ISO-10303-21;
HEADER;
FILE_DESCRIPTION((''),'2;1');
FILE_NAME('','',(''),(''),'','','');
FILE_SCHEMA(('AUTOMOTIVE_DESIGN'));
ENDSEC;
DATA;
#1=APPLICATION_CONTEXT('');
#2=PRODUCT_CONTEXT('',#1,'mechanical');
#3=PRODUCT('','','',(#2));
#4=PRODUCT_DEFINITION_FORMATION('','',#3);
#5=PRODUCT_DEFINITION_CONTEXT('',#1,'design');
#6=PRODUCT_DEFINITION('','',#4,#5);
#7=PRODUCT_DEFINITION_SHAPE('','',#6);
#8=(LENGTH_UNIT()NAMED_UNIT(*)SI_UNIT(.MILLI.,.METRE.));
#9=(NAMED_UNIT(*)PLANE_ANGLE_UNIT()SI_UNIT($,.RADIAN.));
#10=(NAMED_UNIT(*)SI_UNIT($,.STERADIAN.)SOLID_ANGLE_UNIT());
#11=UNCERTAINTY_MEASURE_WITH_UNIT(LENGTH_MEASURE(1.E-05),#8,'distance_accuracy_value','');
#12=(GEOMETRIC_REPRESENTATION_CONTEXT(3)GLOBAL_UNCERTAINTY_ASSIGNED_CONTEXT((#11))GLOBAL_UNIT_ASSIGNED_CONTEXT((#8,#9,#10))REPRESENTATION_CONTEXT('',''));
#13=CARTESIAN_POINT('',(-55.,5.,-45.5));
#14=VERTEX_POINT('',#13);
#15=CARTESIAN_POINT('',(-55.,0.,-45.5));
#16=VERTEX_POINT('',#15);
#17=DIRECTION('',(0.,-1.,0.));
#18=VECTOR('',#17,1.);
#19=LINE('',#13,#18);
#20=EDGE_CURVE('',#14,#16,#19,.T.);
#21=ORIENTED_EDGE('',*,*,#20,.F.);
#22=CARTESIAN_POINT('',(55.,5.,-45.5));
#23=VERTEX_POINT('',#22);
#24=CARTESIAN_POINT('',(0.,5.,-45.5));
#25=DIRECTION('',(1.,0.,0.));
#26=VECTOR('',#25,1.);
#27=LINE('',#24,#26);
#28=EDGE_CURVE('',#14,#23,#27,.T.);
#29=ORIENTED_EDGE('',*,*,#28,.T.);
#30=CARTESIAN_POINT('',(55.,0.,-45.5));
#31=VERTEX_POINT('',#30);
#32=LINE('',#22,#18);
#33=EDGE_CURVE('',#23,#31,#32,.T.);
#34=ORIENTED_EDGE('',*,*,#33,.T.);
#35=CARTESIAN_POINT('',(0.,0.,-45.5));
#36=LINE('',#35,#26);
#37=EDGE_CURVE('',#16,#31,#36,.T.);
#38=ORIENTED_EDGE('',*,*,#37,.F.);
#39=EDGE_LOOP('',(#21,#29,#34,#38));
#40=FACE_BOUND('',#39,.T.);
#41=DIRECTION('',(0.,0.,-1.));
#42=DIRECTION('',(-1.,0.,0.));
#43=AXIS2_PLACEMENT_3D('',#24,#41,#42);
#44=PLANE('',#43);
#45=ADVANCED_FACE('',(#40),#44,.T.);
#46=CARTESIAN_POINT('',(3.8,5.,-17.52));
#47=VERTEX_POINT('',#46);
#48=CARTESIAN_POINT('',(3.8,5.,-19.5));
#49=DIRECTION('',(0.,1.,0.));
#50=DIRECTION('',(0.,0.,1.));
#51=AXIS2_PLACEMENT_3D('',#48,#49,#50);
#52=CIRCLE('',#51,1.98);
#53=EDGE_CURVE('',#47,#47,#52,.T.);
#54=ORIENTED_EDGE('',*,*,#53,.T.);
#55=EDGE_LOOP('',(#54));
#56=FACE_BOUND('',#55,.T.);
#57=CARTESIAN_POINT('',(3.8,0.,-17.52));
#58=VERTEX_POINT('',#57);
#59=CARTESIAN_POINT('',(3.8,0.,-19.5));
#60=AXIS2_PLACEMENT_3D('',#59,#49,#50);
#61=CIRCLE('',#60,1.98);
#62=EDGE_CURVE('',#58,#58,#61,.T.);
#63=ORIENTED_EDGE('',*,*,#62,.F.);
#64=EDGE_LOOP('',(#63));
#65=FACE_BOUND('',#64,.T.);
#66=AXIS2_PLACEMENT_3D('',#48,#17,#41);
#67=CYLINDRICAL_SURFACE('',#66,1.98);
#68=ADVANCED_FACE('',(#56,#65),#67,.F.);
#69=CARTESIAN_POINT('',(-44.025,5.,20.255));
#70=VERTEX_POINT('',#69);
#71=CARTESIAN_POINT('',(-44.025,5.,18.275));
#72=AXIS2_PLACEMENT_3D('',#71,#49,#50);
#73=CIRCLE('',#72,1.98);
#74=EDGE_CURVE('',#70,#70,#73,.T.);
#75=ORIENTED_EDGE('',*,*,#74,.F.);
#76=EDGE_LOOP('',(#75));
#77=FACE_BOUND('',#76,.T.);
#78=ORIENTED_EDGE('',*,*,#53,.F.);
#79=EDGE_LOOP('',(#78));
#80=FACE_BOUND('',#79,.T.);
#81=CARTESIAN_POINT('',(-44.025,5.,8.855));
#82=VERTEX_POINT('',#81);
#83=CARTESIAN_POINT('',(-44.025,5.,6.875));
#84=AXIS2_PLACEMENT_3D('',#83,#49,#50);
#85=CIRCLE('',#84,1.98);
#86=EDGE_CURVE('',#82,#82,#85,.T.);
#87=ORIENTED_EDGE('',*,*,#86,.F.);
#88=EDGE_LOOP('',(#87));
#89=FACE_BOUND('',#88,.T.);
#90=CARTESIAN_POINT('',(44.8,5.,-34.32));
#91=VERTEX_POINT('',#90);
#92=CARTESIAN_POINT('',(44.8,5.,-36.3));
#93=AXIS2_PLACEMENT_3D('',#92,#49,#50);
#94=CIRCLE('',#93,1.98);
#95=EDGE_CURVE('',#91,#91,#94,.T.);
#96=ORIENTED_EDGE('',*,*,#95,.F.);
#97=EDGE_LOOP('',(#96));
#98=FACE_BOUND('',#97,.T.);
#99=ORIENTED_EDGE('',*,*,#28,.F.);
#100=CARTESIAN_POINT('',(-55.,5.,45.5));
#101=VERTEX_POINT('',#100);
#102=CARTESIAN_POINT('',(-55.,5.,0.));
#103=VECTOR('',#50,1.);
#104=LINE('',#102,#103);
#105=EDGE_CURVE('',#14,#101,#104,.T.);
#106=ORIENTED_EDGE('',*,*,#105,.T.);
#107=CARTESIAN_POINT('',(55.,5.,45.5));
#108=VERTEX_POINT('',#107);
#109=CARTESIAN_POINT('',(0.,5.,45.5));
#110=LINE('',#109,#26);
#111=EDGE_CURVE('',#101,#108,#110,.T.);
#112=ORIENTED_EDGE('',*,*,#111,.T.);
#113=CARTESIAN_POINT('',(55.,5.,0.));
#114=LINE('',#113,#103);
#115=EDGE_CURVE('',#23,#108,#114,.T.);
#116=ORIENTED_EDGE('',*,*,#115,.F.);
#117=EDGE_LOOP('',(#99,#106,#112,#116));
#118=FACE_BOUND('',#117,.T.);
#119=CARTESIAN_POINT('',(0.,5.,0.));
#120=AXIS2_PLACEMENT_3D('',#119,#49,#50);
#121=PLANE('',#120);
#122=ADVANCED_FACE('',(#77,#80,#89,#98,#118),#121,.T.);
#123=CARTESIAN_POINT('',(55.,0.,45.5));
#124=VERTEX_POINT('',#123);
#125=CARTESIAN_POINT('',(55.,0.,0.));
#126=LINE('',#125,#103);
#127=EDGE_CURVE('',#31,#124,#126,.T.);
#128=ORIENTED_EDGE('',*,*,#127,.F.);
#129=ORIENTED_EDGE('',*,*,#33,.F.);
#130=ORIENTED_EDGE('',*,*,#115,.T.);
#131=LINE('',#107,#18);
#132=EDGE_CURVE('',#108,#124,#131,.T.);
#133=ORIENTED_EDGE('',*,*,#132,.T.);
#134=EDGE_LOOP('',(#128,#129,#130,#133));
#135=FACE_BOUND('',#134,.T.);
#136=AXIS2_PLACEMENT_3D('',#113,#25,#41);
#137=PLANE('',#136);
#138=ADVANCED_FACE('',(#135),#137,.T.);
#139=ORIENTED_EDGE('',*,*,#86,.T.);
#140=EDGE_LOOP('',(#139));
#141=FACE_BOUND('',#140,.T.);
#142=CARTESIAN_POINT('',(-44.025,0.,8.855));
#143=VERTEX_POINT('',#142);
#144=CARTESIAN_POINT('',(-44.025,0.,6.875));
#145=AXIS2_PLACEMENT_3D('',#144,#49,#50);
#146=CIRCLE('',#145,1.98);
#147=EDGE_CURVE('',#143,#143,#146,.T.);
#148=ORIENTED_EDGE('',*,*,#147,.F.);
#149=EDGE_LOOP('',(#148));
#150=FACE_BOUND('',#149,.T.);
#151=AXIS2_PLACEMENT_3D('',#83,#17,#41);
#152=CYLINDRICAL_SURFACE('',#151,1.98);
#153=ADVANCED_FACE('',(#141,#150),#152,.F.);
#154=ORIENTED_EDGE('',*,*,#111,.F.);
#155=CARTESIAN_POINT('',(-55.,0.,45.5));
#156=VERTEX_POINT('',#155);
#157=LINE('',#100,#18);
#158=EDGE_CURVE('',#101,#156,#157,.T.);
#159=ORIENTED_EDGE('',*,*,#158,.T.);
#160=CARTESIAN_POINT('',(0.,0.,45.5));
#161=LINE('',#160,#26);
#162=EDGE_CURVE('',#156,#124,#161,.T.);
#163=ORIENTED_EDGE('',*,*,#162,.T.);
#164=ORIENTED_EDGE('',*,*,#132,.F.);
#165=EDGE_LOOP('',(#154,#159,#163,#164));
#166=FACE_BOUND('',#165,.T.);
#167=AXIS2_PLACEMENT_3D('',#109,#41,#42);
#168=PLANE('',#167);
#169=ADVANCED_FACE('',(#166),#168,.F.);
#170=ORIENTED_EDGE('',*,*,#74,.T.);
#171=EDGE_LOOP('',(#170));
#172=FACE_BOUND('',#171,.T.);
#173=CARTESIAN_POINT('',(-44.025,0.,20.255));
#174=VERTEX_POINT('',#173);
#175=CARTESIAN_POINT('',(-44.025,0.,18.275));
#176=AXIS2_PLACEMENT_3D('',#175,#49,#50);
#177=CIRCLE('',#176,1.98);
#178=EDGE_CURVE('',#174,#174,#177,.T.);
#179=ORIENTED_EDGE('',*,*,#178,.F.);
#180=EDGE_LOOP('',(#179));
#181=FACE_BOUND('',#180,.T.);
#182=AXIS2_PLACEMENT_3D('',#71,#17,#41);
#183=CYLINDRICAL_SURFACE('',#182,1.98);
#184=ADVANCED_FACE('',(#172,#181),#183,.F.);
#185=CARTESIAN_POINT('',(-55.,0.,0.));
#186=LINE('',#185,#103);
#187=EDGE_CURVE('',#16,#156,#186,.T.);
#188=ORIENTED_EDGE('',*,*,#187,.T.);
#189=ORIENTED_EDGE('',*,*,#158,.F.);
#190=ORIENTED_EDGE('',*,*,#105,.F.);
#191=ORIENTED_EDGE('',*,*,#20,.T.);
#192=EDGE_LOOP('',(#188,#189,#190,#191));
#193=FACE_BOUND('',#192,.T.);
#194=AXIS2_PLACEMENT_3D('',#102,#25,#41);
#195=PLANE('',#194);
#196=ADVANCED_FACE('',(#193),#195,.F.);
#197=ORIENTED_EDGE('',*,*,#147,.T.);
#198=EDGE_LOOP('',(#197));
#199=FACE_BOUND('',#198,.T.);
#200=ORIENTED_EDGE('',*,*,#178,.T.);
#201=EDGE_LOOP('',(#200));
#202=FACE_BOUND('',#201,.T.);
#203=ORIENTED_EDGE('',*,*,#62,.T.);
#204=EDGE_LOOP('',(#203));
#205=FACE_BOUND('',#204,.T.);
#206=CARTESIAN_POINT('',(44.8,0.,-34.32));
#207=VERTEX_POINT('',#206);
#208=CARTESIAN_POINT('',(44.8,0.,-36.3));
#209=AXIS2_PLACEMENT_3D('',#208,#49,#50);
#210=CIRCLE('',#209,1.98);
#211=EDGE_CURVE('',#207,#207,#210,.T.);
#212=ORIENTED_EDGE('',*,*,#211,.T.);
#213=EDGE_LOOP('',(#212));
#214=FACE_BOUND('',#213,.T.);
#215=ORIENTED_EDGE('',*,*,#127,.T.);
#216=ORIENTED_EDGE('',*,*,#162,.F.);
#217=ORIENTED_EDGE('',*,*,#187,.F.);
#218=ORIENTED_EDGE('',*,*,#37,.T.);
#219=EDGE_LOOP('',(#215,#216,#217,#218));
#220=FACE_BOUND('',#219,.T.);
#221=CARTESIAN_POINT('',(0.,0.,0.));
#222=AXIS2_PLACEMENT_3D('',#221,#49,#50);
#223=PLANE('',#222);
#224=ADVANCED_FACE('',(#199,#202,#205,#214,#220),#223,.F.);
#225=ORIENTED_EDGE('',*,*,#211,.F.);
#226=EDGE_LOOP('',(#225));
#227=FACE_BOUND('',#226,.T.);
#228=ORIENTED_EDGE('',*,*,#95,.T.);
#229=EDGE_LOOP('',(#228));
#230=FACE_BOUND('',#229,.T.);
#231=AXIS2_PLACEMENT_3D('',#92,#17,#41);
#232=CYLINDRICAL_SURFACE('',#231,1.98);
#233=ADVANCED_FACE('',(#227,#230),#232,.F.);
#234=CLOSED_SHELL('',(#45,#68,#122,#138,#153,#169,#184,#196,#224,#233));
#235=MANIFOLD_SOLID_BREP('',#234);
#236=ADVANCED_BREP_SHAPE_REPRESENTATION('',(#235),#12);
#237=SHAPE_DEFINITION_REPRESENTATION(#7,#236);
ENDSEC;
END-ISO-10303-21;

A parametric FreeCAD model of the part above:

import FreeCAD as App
import Part
import Sketcher
from FreeCAD import Vector
Q = App.Units.Quantity

doc = App.newDocument("Part")
params = doc.addObject("Spreadsheet::Sheet", "Params")
for row, (alias, value) in enumerate([
    ("sketch1_diameter", "3.96 mm"),
    ("sketch1_width", "110 mm"),
    ("sketch1_height", "91 mm"),
    ("pad1_length", "5 mm"),
], start=1):
    params.set(f"A{row}", alias)
    params.set(f"B{row}", "=" + value)
    params.setAlias(f"B{row}", alias)

body = doc.addObject("PartDesign::Body", "Body")

sketch1 = doc.addObject("Sketcher::SketchObject", "Sketch")
body.addObject(sketch1)
sketch1.AttachmentSupport = (doc.XZ_Plane, [""])
sketch1.MapMode = "FlatFace"
sketch1.addGeometry(Part.LineSegment(Vector(-55, -45.5, 0), Vector(-55, 45.5, 0)), False)
sketch1.addGeometry(Part.LineSegment(Vector(-55, 45.5, 0), Vector(55, 45.5, 0)), False)
sketch1.addGeometry(Part.LineSegment(Vector(55, 45.5, 0), Vector(55, -45.5, 0)), False)
sketch1.addGeometry(Part.LineSegment(Vector(55, -45.5, 0), Vector(-55, -45.5, 0)), False)
sketch1.addGeometry(Part.Circle(Vector(-44, 18.3, 0), Vector(0, 0, 1), 2), False)
sketch1.addGeometry(Part.Circle(Vector(-44, 6.9, 0), Vector(0, 0, 1), 2), False)
sketch1.addGeometry(Part.Circle(Vector(3.8, -19.5, 0), Vector(0, 0, 1), 2), False)
sketch1.addGeometry(Part.Circle(Vector(44.8, -36.3, 0), Vector(0, 0, 1), 2), False)
sketch1.addConstraint(Sketcher.Constraint("Coincident", 0, 2, 1, 1))
sketch1.addConstraint(Sketcher.Constraint("Coincident", 1, 2, 2, 1))
sketch1.addConstraint(Sketcher.Constraint("Coincident", 2, 2, 3, 1))
sketch1.addConstraint(Sketcher.Constraint("Coincident", 3, 2, 0, 1))
sketch1.addConstraint(Sketcher.Constraint("Vertical", 0))
sketch1.addConstraint(Sketcher.Constraint("Horizontal", 1))
sketch1.addConstraint(Sketcher.Constraint("Vertical", 2))
sketch1.addConstraint(Sketcher.Constraint("Horizontal", 3))
sketch1.addConstraint(Sketcher.Constraint("Equal", 4, 5))
sketch1.addConstraint(Sketcher.Constraint("Equal", 5, 6))
sketch1.addConstraint(Sketcher.Constraint("Equal", 6, 7))
sketch1.addConstraint(Sketcher.Constraint("Symmetric", 0, 2, 2, 2, -1, 1))
sketch1.addConstraint(Sketcher.Constraint("Vertical", 4, 3, 5, 3))
sketch1.addConstraint(Sketcher.Constraint("Diameter", 4, Q("3.96 mm")))
sketch1.addConstraint(Sketcher.Constraint("DistanceX", 1, 1, 1, 2, Q("110 mm")))
sketch1.addConstraint(Sketcher.Constraint("DistanceY", 0, 1, 0, 2, Q("91 mm")))
sketch1.addConstraint(Sketcher.Constraint("DistanceX", 6, 3, 7, 3, Q("41 mm")))
sketch1.addConstraint(Sketcher.Constraint("DistanceY", 6, 3, 0, 2, Q("65 mm")))
sketch1.addConstraint(Sketcher.Constraint("DistanceX", -1, 1, 6, 3, Q("3.8 mm")))
sketch1.addConstraint(Sketcher.Constraint("DistanceY", 7, 3, -1, 1, Q("36.3 mm")))
sketch1.addConstraint(Sketcher.Constraint("DistanceY", 5, 3, 4, 3, Q("11.4 mm")))
sketch1.addConstraint(Sketcher.Constraint("DistanceX", 4, 3, -1, 1, Q("44.025 mm")))
sketch1.addConstraint(Sketcher.Constraint("DistanceY", -1, 1, 4, 3, Q("18.275 mm")))
sketch1.setExpression("Constraints[13]", "Params.sketch1_diameter")
sketch1.setExpression("Constraints[14]", "Params.sketch1_width")
sketch1.setExpression("Constraints[15]", "Params.sketch1_height")
pad1 = doc.addObject("PartDesign::Pad", "Pad")
body.addObject(pad1)
pad1.Profile = sketch1
pad1.setExpression("Length", "Params.pad1_length")
pad1.Reversed = True

doc.recompute()
